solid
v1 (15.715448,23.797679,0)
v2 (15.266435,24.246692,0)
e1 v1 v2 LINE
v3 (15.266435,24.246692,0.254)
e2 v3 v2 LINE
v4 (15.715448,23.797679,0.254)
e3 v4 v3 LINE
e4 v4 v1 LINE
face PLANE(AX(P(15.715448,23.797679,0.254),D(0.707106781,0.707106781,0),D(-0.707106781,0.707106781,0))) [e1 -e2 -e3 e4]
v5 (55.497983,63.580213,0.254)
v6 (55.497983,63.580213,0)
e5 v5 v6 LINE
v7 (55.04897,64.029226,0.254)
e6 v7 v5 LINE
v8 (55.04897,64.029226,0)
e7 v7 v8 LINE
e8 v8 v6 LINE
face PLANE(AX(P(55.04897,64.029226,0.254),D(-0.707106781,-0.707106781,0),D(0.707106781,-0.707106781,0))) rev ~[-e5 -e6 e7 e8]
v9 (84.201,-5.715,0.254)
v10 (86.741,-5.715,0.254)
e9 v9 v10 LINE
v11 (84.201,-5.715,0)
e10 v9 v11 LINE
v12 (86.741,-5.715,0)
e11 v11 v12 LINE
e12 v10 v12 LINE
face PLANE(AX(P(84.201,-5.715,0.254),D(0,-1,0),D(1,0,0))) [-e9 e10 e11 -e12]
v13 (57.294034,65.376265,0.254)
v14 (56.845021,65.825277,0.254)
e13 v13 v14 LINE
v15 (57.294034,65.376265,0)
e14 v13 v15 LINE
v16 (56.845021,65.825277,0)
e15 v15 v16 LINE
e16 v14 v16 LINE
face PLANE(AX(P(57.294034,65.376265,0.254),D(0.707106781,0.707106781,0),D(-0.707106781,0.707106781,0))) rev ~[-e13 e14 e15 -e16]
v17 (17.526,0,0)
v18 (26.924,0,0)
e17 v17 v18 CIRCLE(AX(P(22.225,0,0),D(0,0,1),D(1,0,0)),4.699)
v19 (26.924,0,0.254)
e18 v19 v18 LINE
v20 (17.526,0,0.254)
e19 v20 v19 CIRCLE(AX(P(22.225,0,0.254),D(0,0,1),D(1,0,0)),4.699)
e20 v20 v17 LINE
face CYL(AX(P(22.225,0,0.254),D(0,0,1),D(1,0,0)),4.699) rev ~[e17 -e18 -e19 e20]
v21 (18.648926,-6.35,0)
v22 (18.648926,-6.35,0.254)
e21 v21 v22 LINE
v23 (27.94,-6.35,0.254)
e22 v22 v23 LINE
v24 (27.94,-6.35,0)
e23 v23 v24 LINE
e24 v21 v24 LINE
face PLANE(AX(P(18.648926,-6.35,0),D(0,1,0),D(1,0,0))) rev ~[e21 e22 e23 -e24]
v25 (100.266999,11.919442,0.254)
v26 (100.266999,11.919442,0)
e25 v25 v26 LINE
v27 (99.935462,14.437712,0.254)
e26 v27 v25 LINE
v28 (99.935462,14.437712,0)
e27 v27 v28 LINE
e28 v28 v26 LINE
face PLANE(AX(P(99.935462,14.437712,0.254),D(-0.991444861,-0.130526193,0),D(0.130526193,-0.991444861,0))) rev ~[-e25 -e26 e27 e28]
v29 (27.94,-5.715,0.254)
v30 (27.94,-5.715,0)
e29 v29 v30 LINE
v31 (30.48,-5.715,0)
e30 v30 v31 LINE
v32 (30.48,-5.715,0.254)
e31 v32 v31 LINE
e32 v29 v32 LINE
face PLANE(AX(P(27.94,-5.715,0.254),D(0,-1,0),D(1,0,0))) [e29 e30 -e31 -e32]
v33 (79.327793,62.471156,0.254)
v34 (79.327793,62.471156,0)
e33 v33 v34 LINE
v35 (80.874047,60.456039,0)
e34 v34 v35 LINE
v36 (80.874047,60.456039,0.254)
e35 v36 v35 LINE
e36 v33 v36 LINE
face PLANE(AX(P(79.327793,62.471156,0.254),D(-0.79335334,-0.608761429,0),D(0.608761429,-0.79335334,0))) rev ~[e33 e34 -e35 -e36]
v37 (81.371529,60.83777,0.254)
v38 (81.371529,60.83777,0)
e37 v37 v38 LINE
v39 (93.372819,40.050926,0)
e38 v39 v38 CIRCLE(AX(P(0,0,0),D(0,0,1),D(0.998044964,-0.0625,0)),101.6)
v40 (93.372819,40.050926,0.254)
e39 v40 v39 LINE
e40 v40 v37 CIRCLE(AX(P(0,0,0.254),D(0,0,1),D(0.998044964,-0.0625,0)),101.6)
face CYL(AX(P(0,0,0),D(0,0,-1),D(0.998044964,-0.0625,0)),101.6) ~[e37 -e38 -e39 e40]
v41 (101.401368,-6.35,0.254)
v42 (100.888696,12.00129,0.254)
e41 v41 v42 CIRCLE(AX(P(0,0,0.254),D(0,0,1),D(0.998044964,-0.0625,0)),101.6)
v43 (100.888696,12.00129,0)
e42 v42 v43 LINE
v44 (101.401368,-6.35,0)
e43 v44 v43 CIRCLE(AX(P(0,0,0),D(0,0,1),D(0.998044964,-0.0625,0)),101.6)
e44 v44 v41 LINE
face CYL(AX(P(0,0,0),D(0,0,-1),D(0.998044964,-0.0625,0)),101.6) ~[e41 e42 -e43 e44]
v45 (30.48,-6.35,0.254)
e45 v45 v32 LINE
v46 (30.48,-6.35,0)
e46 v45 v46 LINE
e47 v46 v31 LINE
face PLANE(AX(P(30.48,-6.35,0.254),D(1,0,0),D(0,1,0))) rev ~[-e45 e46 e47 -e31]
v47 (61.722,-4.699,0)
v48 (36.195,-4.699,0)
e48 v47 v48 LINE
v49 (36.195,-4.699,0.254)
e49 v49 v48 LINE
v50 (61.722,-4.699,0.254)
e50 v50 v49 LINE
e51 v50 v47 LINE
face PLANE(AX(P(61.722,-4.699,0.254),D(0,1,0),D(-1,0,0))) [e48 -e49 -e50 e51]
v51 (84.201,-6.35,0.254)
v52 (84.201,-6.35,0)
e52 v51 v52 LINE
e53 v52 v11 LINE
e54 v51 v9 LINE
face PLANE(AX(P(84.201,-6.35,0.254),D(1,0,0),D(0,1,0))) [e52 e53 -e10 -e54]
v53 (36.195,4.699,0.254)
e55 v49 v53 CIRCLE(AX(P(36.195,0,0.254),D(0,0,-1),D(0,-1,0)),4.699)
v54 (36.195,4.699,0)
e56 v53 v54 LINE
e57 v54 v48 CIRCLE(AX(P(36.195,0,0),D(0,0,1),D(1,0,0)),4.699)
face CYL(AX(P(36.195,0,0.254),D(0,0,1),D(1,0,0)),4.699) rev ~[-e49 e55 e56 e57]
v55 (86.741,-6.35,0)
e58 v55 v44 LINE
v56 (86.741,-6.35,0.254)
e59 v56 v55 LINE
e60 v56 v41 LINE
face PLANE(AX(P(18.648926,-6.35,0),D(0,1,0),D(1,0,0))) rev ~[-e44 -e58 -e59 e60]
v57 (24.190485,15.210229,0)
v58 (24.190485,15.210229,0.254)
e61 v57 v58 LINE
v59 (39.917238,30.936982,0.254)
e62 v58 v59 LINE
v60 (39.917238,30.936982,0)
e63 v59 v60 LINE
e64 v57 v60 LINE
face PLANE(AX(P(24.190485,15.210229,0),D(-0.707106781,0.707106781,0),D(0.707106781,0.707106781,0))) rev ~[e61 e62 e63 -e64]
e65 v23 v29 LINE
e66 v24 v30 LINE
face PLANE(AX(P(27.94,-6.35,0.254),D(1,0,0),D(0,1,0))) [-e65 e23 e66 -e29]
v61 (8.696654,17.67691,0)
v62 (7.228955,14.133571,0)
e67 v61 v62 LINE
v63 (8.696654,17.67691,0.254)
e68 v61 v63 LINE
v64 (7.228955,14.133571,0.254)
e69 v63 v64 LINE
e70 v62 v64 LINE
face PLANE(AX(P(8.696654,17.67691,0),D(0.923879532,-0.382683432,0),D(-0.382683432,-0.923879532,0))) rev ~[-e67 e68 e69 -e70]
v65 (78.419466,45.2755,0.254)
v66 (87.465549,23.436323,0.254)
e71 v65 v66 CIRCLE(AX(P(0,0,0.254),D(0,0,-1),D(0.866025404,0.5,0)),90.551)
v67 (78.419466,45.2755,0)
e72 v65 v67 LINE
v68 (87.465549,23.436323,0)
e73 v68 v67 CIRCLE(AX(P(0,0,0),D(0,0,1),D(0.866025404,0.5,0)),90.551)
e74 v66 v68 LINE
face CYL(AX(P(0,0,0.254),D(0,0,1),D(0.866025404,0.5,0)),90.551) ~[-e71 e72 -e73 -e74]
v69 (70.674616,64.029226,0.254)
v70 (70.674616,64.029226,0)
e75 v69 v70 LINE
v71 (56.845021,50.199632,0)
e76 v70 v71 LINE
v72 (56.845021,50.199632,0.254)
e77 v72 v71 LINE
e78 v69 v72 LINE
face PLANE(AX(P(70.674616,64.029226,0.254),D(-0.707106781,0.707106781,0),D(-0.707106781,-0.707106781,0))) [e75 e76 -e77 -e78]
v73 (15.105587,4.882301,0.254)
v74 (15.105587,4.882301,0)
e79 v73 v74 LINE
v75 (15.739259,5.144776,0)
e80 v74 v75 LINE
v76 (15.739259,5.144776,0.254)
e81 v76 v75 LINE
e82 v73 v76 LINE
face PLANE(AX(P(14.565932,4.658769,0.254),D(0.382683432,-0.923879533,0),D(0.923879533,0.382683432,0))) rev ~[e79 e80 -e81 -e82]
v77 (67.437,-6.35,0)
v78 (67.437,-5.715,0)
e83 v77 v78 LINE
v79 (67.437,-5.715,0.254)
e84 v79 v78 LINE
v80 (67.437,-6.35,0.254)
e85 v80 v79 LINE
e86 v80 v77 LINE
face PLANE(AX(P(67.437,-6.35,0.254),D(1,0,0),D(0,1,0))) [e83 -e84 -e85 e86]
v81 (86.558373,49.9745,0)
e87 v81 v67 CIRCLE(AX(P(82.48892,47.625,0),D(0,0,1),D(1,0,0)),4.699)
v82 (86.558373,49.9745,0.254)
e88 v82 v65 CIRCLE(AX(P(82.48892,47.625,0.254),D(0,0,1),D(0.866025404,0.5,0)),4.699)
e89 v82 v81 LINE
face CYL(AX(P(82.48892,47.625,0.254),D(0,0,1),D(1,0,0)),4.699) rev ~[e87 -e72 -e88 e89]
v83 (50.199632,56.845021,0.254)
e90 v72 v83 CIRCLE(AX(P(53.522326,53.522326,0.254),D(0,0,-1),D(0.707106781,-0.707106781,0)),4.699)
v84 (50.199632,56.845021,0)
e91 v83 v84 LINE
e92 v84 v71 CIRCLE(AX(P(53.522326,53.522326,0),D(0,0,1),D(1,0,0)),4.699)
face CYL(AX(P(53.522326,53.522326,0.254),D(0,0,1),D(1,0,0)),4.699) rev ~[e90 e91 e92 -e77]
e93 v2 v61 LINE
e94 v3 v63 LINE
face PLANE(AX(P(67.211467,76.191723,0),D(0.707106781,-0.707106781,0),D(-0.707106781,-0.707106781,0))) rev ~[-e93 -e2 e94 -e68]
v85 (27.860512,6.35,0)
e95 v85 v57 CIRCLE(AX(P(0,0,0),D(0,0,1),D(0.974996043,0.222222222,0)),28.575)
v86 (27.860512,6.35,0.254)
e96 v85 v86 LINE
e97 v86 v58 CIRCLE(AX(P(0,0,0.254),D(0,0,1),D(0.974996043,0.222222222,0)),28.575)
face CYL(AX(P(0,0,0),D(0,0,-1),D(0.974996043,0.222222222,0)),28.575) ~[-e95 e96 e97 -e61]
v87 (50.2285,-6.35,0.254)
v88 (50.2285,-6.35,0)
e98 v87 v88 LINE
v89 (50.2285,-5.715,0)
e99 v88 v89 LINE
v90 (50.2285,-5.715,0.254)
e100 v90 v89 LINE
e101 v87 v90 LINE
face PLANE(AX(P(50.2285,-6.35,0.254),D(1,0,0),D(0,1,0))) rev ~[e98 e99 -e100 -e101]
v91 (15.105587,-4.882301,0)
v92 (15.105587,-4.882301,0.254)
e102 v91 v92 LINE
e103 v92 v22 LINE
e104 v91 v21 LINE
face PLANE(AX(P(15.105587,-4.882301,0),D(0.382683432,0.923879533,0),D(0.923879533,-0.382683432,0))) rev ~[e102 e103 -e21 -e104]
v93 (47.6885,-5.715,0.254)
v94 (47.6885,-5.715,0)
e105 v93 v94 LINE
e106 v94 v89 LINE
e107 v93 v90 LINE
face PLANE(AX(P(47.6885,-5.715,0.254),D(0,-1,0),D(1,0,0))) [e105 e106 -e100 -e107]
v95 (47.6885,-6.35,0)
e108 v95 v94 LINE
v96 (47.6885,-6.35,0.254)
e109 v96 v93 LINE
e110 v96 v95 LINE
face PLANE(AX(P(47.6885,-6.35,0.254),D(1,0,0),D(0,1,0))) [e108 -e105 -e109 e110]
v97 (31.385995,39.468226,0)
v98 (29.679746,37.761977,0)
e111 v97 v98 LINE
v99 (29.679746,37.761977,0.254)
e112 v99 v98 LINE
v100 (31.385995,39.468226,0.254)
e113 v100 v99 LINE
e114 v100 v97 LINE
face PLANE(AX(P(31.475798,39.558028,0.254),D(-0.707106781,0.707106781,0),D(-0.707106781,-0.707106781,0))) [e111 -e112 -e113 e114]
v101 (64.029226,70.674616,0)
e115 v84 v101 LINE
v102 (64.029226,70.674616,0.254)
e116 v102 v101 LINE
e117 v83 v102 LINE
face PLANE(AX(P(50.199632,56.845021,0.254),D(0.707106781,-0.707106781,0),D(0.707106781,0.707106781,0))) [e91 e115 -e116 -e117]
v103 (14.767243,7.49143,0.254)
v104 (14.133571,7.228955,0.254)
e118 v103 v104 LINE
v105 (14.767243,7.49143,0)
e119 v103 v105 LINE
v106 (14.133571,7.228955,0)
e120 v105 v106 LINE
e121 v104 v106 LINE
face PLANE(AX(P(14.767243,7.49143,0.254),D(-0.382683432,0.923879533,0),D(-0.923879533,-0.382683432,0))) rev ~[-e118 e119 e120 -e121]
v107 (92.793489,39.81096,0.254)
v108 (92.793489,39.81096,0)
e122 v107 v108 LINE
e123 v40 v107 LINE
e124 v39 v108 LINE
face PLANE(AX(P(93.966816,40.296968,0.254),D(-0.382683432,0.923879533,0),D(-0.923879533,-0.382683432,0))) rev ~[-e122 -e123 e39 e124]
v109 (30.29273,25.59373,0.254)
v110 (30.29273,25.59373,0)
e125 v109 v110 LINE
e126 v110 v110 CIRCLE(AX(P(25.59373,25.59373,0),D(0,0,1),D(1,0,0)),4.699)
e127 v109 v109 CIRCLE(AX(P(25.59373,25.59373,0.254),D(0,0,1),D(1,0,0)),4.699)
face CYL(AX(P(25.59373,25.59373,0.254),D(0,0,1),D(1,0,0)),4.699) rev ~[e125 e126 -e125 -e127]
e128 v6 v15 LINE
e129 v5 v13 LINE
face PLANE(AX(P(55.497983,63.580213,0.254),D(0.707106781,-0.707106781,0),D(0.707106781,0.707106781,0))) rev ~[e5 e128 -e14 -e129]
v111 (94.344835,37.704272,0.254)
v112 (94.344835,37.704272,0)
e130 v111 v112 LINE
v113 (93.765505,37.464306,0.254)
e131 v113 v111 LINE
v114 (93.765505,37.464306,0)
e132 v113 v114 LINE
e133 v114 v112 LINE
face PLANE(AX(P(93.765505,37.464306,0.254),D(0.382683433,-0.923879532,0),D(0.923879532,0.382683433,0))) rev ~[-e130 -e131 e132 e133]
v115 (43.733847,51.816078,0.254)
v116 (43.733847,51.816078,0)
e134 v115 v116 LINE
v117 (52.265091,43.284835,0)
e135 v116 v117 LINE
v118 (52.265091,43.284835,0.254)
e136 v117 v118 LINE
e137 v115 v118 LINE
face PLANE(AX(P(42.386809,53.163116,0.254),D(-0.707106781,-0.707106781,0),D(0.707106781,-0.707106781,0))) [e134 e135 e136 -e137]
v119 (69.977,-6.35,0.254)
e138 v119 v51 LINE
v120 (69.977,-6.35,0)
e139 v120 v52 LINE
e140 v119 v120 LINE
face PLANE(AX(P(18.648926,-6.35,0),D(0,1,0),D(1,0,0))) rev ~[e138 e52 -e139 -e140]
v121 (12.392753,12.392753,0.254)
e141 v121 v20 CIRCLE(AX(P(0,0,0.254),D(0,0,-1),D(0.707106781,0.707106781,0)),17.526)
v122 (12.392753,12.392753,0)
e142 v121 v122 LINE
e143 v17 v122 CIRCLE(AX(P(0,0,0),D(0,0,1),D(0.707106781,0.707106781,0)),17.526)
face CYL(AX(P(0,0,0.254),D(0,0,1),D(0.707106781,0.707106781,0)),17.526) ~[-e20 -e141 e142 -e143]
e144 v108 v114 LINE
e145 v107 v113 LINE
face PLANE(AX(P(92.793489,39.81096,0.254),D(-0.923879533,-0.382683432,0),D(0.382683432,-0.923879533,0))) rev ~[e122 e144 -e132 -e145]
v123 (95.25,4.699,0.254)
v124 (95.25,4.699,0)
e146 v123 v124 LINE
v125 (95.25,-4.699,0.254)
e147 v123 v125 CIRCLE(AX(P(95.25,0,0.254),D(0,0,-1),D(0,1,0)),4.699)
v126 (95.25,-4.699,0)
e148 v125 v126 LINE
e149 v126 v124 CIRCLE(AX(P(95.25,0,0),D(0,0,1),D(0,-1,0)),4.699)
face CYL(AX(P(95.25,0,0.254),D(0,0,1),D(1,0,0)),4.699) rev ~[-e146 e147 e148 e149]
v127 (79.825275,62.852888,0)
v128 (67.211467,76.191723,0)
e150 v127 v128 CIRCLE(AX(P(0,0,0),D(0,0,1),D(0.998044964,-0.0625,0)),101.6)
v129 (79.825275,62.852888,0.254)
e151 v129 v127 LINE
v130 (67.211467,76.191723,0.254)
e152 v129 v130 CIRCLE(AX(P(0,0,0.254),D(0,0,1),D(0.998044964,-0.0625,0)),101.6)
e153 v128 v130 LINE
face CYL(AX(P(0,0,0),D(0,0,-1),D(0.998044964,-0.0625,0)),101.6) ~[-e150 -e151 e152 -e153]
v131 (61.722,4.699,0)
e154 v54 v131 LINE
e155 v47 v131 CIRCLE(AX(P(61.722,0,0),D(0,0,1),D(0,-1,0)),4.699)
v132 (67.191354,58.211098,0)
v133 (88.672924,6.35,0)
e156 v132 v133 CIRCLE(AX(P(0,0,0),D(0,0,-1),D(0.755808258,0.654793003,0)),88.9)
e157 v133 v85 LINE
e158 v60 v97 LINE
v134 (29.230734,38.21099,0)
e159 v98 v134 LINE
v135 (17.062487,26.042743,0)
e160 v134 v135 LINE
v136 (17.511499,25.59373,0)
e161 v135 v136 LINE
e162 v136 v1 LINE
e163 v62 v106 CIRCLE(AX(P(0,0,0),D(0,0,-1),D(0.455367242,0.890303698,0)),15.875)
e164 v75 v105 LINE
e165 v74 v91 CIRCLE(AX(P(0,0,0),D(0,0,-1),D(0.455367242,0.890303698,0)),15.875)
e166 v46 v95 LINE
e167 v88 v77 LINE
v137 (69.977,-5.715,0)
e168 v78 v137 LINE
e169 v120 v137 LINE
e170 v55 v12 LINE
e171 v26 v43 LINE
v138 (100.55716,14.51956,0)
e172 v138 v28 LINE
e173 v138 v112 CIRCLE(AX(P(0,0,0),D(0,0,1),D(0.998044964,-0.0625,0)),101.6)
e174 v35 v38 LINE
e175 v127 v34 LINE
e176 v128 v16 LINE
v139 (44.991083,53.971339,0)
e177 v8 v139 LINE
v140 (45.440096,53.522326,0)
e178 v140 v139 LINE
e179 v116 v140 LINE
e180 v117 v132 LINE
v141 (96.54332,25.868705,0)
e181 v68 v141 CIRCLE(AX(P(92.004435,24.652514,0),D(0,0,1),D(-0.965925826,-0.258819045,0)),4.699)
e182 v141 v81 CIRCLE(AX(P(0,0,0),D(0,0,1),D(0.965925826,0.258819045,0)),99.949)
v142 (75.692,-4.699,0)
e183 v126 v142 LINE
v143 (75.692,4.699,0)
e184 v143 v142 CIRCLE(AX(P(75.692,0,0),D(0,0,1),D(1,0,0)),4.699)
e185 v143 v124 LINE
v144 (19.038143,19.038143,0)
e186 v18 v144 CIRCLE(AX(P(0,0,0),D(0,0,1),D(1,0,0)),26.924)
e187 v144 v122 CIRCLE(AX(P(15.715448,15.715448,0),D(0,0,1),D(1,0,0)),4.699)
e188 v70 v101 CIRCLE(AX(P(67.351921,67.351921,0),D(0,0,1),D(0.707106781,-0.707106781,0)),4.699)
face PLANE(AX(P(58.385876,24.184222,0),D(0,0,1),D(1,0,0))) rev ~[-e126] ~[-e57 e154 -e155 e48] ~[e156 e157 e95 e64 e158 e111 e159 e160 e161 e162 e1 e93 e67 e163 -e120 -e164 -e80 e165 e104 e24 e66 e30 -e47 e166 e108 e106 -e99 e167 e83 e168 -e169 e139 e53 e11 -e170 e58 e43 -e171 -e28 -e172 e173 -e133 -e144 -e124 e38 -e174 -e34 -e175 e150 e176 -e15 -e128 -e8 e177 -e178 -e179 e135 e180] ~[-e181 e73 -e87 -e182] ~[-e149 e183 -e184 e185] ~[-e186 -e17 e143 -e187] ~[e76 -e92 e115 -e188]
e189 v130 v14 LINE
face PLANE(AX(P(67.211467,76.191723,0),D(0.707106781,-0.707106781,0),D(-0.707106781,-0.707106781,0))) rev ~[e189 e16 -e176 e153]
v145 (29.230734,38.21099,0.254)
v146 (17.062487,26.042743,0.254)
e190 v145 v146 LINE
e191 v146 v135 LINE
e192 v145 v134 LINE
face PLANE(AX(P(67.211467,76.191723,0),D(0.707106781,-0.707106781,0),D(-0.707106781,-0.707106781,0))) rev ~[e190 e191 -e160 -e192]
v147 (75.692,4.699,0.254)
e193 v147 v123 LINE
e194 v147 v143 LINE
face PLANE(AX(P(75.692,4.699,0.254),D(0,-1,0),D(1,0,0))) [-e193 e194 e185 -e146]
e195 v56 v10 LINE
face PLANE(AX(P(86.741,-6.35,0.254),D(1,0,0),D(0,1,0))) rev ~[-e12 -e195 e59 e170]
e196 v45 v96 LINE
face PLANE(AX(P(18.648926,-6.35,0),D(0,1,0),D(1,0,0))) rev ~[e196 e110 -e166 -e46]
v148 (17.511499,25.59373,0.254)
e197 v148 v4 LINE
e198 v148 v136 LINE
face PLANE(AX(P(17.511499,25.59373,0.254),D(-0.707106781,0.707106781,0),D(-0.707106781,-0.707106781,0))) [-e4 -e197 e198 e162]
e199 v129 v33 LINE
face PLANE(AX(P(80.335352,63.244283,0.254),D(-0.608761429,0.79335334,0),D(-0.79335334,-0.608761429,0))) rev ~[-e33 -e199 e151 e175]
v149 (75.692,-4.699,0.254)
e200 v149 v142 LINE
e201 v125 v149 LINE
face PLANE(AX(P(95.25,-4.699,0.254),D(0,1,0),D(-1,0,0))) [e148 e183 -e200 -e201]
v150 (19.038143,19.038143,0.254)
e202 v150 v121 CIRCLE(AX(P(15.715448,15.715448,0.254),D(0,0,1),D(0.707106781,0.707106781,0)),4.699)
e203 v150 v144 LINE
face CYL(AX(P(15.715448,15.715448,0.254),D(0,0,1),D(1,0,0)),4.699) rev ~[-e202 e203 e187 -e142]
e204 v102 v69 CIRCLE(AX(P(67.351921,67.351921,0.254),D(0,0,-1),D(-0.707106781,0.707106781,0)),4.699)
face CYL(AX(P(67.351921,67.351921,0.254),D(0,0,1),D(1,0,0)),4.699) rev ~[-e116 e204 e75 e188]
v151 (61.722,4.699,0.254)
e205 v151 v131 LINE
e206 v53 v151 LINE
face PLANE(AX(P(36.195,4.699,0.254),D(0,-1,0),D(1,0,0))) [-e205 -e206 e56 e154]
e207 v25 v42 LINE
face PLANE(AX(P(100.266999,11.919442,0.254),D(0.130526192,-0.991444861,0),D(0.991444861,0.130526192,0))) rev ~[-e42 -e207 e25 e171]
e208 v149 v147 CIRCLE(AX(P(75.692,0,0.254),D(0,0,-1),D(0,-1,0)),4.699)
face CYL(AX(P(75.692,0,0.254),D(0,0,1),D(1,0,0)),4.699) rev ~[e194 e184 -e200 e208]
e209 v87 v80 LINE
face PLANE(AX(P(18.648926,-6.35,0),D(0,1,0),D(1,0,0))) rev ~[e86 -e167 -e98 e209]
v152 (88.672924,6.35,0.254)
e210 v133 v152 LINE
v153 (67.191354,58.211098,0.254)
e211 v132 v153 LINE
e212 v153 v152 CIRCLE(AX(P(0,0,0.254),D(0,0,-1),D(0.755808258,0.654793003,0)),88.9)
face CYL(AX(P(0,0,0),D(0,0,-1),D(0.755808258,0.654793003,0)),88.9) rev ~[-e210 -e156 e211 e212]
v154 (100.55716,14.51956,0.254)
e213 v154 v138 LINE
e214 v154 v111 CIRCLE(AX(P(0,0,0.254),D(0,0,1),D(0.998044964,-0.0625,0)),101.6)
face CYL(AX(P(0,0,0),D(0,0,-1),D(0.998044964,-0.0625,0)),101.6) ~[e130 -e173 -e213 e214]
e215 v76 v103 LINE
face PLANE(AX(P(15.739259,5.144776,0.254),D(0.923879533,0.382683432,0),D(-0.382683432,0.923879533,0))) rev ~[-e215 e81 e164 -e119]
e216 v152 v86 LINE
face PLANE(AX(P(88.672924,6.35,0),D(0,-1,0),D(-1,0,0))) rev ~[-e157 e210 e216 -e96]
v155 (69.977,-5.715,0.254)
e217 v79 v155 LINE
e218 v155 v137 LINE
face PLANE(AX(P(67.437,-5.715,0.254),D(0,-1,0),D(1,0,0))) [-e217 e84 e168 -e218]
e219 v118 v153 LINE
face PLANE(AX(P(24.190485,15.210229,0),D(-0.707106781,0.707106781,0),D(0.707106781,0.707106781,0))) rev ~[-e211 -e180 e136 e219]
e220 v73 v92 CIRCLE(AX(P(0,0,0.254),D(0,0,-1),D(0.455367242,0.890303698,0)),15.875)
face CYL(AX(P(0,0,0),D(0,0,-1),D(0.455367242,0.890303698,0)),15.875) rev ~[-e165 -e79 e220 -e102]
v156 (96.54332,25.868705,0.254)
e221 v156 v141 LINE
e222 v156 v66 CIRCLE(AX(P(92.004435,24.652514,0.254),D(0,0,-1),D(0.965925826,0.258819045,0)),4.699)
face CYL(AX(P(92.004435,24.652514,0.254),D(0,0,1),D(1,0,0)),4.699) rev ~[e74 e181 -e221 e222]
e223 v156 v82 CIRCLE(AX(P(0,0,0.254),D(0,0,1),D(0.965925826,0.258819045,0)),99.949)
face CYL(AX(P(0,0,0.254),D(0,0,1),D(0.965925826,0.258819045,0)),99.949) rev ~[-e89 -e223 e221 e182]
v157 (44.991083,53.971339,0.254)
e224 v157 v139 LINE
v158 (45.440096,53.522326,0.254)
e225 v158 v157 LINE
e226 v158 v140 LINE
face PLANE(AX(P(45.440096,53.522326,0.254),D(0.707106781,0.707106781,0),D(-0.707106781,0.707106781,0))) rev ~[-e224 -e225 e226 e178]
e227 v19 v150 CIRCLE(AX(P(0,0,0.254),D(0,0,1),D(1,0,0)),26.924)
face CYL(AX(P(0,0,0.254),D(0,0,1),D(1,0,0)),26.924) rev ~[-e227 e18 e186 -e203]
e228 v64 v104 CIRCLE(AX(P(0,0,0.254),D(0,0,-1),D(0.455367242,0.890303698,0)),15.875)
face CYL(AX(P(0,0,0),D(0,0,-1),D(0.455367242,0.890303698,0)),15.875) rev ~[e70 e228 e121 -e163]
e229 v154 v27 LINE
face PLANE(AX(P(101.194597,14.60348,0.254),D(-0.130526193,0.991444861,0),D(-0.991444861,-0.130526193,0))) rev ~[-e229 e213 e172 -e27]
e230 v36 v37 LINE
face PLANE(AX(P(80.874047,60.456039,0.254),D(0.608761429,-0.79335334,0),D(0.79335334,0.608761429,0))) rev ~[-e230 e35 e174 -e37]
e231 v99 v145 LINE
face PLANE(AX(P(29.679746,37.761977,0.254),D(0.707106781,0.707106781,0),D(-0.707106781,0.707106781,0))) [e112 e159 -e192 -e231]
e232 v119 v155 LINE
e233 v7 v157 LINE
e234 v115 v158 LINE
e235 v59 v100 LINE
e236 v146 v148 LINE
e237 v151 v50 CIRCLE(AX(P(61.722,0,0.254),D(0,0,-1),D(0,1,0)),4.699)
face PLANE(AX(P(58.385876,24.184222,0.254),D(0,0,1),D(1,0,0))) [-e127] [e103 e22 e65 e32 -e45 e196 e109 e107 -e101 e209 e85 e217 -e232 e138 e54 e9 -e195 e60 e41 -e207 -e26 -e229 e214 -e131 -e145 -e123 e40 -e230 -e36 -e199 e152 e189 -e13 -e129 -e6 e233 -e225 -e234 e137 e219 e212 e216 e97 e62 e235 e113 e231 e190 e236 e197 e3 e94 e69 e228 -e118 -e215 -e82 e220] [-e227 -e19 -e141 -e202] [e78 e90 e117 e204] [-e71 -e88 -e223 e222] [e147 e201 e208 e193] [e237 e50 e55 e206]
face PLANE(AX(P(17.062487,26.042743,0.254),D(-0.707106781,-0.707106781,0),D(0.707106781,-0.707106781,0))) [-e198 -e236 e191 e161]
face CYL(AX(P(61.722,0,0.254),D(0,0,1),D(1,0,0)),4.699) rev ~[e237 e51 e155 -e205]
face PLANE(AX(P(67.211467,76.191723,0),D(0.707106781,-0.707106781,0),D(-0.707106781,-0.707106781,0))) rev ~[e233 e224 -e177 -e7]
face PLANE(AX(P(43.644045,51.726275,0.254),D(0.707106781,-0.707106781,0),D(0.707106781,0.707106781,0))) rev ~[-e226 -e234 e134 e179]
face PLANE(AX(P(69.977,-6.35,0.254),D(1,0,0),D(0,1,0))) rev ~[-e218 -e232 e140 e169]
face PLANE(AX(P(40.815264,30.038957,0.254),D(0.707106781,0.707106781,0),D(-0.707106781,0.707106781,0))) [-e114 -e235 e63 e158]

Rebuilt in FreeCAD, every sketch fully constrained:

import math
import FreeCAD as App
import Part
import Sketcher

V = App.Vector
Q = App.Units.Quantity

doc = App.newDocument("Part")
params = doc.addObject("Spreadsheet::Sheet", "Params")
for row, (alias, value) in enumerate([
    ("sketch1_radius", "4 in"),
    ("sketch1_radius2", "3.5 in"),
    ("sketch1_radius3", "0.625 in"),
    ("sketch1_radius4", "1.125 in"),
    ("pad1_length", "0.01 in"),
    ("sketch2_diameter", "0.37 in"),
    ("sketch3_width", "0.1 in"),
    ("sketch3_length", "0.1 in"),
    ("sketch3_length2", "0.05 in"),
    ("sketch3_height", "0.025 in"),
    ("sketch3_length3", "0.025 in"),
    ("sketch4_radius", "1.06 in"),
    ("sketch4_radius2", "0.69 in"),
    ("sketch4_radius3", "3.935 in"),
    ("sketch4_width", "0.77 in"),
    ("sketch4_length", "0.77 in"),
    ("sketch5_length", "0.6 in"),
    ("sketch5_length2", "0.6875 in"),
], start=1):
    params.set(f"A{row}", alias)
    params.set(f"B{row}", "=" + value)
    params.setAlias(f"B{row}", alias)

body = doc.addObject("PartDesign::Body", "Body")

# Sketch on XY plane
sketch1 = body.newObject("Sketcher::SketchObject", "Sketch")
sketch1.AttachmentSupport = (doc.getObject("XY_Plane"), [""])
sketch1.MapMode = "FlatFace"
sketch1.addGeometry([
    Part.LineSegment(V(67.211467, 76.191723, 0), V(8.696654, 17.67691, 0)),  # 0
    Part.LineSegment(V(8.696654, 17.67691, 0), V(7.228955, 14.133571, 0)),  # 1
    Part.ArcOfCircle(Part.Circle(V(0, 0, 0), V(0, 0, 1), 15.875), math.radians(-17.911434), math.radians(62.911434)),  # 2
    Part.LineSegment(V(15.105587, -4.882301, 0), V(18.648926, -6.35, 0)),  # 3
    Part.LineSegment(V(18.648926, -6.35, 0), V(101.401368, -6.35, 0)),  # 4
    Part.ArcOfCircle(Part.Circle(V(0, 0, 0), V(0, 0, 1), 101.6), math.radians(-3.583322), math.radians(48.583322)),  # 5
    Part.ArcOfCircle(Part.Circle(V(0, 0, 0), V(0, 0, 1), 88.9), math.radians(4.096044), math.radians(40.903956)),  # 6
    Part.LineSegment(V(88.672924, 6.35, 0), V(27.860512, 6.35, 0)),  # 7
    Part.ArcOfCircle(Part.Circle(V(0, 0, 0), V(0, 0, 1), 28.575), math.radians(12.839588), math.radians(32.160412)),  # 8
    Part.LineSegment(V(24.190485, 15.210229, 0), V(67.191354, 58.211098, 0)),  # 9
], False)
sketch1.addConstraint([
    Sketcher.Constraint("Coincident", 0, 2, 1, 1),
    Sketcher.Constraint("Coincident", 1, 2, 2, 2),
    Sketcher.Constraint("Coincident", 2, 1, 3, 1),
    Sketcher.Constraint("Coincident", 3, 2, 4, 1),
    Sketcher.Constraint("Coincident", 4, 2, 5, 1),
    Sketcher.Constraint("Coincident", 5, 2, 0, 1),
    Sketcher.Constraint("Coincident", 6, 1, 7, 1),
    Sketcher.Constraint("Coincident", 7, 2, 8, 1),
    Sketcher.Constraint("Coincident", 8, 2, 9, 1),
    Sketcher.Constraint("Coincident", 9, 2, 6, 2),
    Sketcher.Constraint("Horizontal", 4),
    Sketcher.Constraint("Horizontal", 7),
    Sketcher.Constraint("Coincident", 2, 3, -1, 1),
    Sketcher.Constraint("Coincident", 5, 3, -1, 1),
    Sketcher.Constraint("Coincident", 6, 3, -1, 1),
    Sketcher.Constraint("Coincident", 8, 3, -1, 1),
    Sketcher.Constraint("Perpendicular", 1, 3),
    Sketcher.Constraint("Parallel", 0, 9),
    Sketcher.Constraint("Equal", 1, 3),
    Sketcher.Constraint("Radius", 5, Q("4 in")),
    Sketcher.Constraint("Radius", 6, Q("3.5 in")),
    Sketcher.Constraint("Angle", 0, Q("-135 deg")),
    Sketcher.Constraint("Radius", 2, Q("0.625 in")),
    Sketcher.Constraint("Radius", 8, Q("1.125 in")),
    Sketcher.Constraint("Angle", 1, Q("-112.5 deg")),
    Sketcher.Constraint("DistanceY", 4, 2, 6, 1, Q("0.5 in")),
    Sketcher.Constraint("DistanceY", 3, 2, -1, 1, Q("0.25 in")),
    Sketcher.Constraint("DistanceY", 2, 1, -1, 1, Q("4.882301 mm")),
    Sketcher.Constraint("DistanceY", -1, 1, 9, 2, Q("58.211098 mm")),
    Sketcher.Constraint("DistanceX", 5, 2, 4, 2, Q("34.189901 mm")),
])
sketch1.setExpression("Constraints[19]", "Params.sketch1_radius")
sketch1.setExpression("Constraints[20]", "Params.sketch1_radius2")
sketch1.setExpression("Constraints[22]", "Params.sketch1_radius3")
sketch1.setExpression("Constraints[23]", "Params.sketch1_radius4")
pad1 = body.newObject("PartDesign::Pad", "Pad")
pad1.Profile = sketch1
pad1.setExpression("Length", "Params.pad1_length")

# Sketch on XY plane
sketch2 = body.newObject("Sketcher::SketchObject", "Sketch001")
sketch2.AttachmentSupport = (doc.getObject("XY_Plane"), [""])
sketch2.MapMode = "FlatFace"
sketch2.AttachmentOffset = App.Placement(V(0, 0, 0.01 * 25.4), App.Rotation())
sketch2.addGeometry([
    Part.Circle(V(22.225, 0, 0), V(0, 0, 1), 4.699),  # 0
    Part.Circle(V(36.195, 0, 0), V(0, 0, 1), 4.699),  # 1
    Part.Circle(V(61.722, 0, 0), V(0, 0, 1), 4.699),  # 2
    Part.Circle(V(75.692, 0, 0), V(0, 0, 1), 4.699),  # 3
    Part.Circle(V(95.25, 0, 0), V(0, 0, 1), 4.699),  # 4
    Part.Circle(V(15.715448, 15.715448, 0), V(0, 0, 1), 4.699),  # 5
    Part.Circle(V(25.59373, 25.59373, 0), V(0, 0, 1), 4.699),  # 6
    Part.Circle(V(43.644045, 43.644045, 0), V(0, 0, 1), 4.699),  # 7
    Part.Circle(V(53.522326, 53.522326, 0), V(0, 0, 1), 4.699),  # 8
    Part.Circle(V(92.004435, 24.652514, 0), V(0, 0, 1), 4.699),  # 9
    Part.Circle(V(82.48892, 47.625, 0), V(0, 0, 1), 4.699),  # 10
    Part.Circle(V(67.351921, 67.351921, 0), V(0, 0, 1), 4.699),  # 11
], False)
sketch2.addConstraint([
    Sketcher.Constraint("Equal", 0, 1),
    Sketcher.Constraint("Equal", 1, 2),
    Sketcher.Constraint("Equal", 2, 3),
    Sketcher.Constraint("Equal", 3, 4),
    Sketcher.Constraint("Equal", 4, 5),
    Sketcher.Constraint("Equal", 5, 6),
    Sketcher.Constraint("Equal", 6, 7),
    Sketcher.Constraint("Equal", 7, 8),
    Sketcher.Constraint("Equal", 8, 9),
    Sketcher.Constraint("Equal", 9, 10),
    Sketcher.Constraint("Equal", 10, 11),
    Sketcher.Constraint("PointOnObject", 0, 3, -1),
    Sketcher.Constraint("PointOnObject", 1, 3, -1),
    Sketcher.Constraint("PointOnObject", 2, 3, -1),
    Sketcher.Constraint("PointOnObject", 3, 3, -1),
    Sketcher.Constraint("PointOnObject", 4, 3, -1),
    Sketcher.Constraint("Diameter", 0, Q("0.37 in")),
    Sketcher.Constraint("DistanceX", -1, 1, 2, 3, Q("2.43 in")),
    Sketcher.Constraint("DistanceX", -1, 1, 3, 3, Q("2.98 in")),
    Sketcher.Constraint("DistanceX", -1, 1, 4, 3, Q("3.75 in")),
    Sketcher.Constraint("DistanceX", 0, 3, 1, 3, Q("0.55 in")),
    Sketcher.Constraint("DistanceX", -1, 1, 0, 3, Q("0.875 in")),
    Sketcher.Constraint("DistanceY", -1, 1, 10, 3, Q("1.875 in")),
    Sketcher.Constraint("DistanceX", 11, 3, 10, 3, Q("15.136999 mm")),
    Sketcher.Constraint("DistanceX", -1, 1, 5, 3, Q("15.715448 mm")),
    Sketcher.Constraint("DistanceY", -1, 1, 5, 3, Q("15.715448 mm")),
    Sketcher.Constraint("DistanceX", -1, 1, 6, 3, Q("25.59373 mm")),
    Sketcher.Constraint("DistanceY", -1, 1, 6, 3, Q("25.59373 mm")),
    Sketcher.Constraint("DistanceX", -1, 1, 10, 3, Q("82.48892 mm")),
    Sketcher.Constraint("DistanceY", -1, 1, 11, 3, Q("67.351921 mm")),
    Sketcher.Constraint("DistanceX", 7, 3, 8, 3, Q("9.878282 mm")),
    Sketcher.Constraint("DistanceY", 7, 3, 8, 3, Q("9.878282 mm")),
    Sketcher.Constraint("DistanceX", 5, 3, 8, 3, Q("37.806878 mm")),
    Sketcher.Constraint("DistanceY", 5, 3, 8, 3, Q("37.806878 mm")),
    Sketcher.Constraint("DistanceX", 8, 3, 9, 3, Q("38.482108 mm")),
    Sketcher.Constraint("DistanceY", 9, 3, 7, 3, Q("18.991531 mm")),
])
sketch2.setExpression("Constraints[16]", "Params.sketch2_diameter")
pocket1 = body.newObject("PartDesign::Pocket", "Pocket")
pocket1.Profile = sketch2
pocket1.Type = "ThroughAll"

# Sketch on XY plane
sketch3 = body.newObject("Sketcher::SketchObject", "Sketch002")
sketch3.AttachmentSupport = (doc.getObject("XY_Plane"), [""])
sketch3.MapMode = "FlatFace"
sketch3.AttachmentOffset = App.Placement(V(0, 0, 0.01 * 25.4), App.Rotation())
sketch3.addGeometry([
    Part.LineSegment(V(17.062487, 26.042743, 0), V(15.266435, 24.246692, 0)),  # 0
    Part.LineSegment(V(15.266435, 24.246692, 0), V(15.715448, 23.797679, 0)),  # 1
    Part.LineSegment(V(15.715448, 23.797679, 0), V(17.511499, 25.59373, 0)),  # 2
    Part.LineSegment(V(17.511499, 25.59373, 0), V(17.062487, 26.042743, 0)),  # 3
    Part.LineSegment(V(44.991083, 53.971339, 0), V(43.195032, 52.175288, 0)),  # 4
    Part.LineSegment(V(43.195032, 52.175288, 0), V(43.644045, 51.726275, 0)),  # 5
    Part.LineSegment(V(43.644045, 51.726275, 0), V(45.440096, 53.522326, 0)),  # 6
    Part.LineSegment(V(45.440096, 53.522326, 0), V(44.991083, 53.971339, 0)),  # 7
    Part.LineSegment(V(27.94, -5.715, 0), V(27.94, -6.35, 0)),  # 8
    Part.LineSegment(V(27.94, -6.35, 0), V(30.48, -6.35, 0)),  # 9
    Part.LineSegment(V(30.48, -6.35, 0), V(30.48, -5.715, 0)),  # 10
    Part.LineSegment(V(30.48, -5.715, 0), V(27.94, -5.715, 0)),  # 11
    Part.LineSegment(V(67.437, -5.715, 0), V(67.437, -6.35, 0)),  # 12
    Part.LineSegment(V(67.437, -6.35, 0), V(69.977, -6.35, 0)),  # 13
    Part.LineSegment(V(69.977, -6.35, 0), V(69.977, -5.715, 0)),  # 14
    Part.LineSegment(V(69.977, -5.715, 0), V(67.437, -5.715, 0)),  # 15
    Part.LineSegment(V(31.026785, 40.007041, 0), V(29.230734, 38.21099, 0)),  # 16
    Part.LineSegment(V(29.230734, 38.21099, 0), V(29.679746, 37.761977, 0)),  # 17
    Part.LineSegment(V(29.679746, 37.761977, 0), V(31.475798, 39.558028, 0)),  # 18
    Part.LineSegment(V(31.475798, 39.558028, 0), V(31.026785, 40.007041, 0)),  # 19
    Part.LineSegment(V(56.845021, 65.825277, 0), V(55.04897, 64.029226, 0)),  # 20
    Part.LineSegment(V(55.04897, 64.029226, 0), V(55.497983, 63.580213, 0)),  # 21
    Part.LineSegment(V(55.497983, 63.580213, 0), V(57.294034, 65.376265, 0)),  # 22
    Part.LineSegment(V(57.294034, 65.376265, 0), V(56.845021, 65.825277, 0)),  # 23
    Part.LineSegment(V(47.6885, -5.715, 0), V(47.6885, -6.35, 0)),  # 24
    Part.LineSegment(V(47.6885, -6.35, 0), V(50.2285, -6.35, 0)),  # 25
    Part.LineSegment(V(50.2285, -6.35, 0), V(50.2285, -5.715, 0)),  # 26
    Part.LineSegment(V(50.2285, -5.715, 0), V(47.6885, -5.715, 0)),  # 27
    Part.LineSegment(V(84.201, -5.715, 0), V(84.201, -6.35, 0)),  # 28
    Part.LineSegment(V(84.201, -6.35, 0), V(86.741, -6.35, 0)),  # 29
    Part.LineSegment(V(86.741, -6.35, 0), V(86.741, -5.715, 0)),  # 30
    Part.LineSegment(V(86.741, -5.715, 0), V(84.201, -5.715, 0)),  # 31
    Part.LineSegment(V(99.935462, 14.437712, 0), V(100.266999, 11.919442, 0)),  # 32
    Part.LineSegment(V(100.266999, 11.919442, 0), V(101.526134, 12.08521, 0)),  # 33
    Part.LineSegment(V(101.526134, 12.08521, 0), V(101.194597, 14.60348, 0)),  # 34
    Part.LineSegment(V(101.194597, 14.60348, 0), V(99.935462, 14.437712, 0)),  # 35
    Part.LineSegment(V(93.765505, 37.464306, 0), V(94.938832, 37.950314, 0)),  # 36
    Part.LineSegment(V(94.938832, 37.950314, 0), V(93.966816, 40.296968, 0)),  # 37
    Part.LineSegment(V(93.966816, 40.296968, 0), V(92.793489, 39.81096, 0)),  # 38
    Part.LineSegment(V(92.793489, 39.81096, 0), V(93.765505, 37.464306, 0)),  # 39
    Part.LineSegment(V(79.327793, 62.471156, 0), V(80.874047, 60.456039, 0)),  # 40
    Part.LineSegment(V(80.874047, 60.456039, 0), V(81.881606, 61.229166, 0)),  # 41
    Part.LineSegment(V(81.881606, 61.229166, 0), V(80.335352, 63.244283, 0)),  # 42
    Part.LineSegment(V(80.335352, 63.244283, 0), V(79.327793, 62.471156, 0)),  # 43
    Part.LineSegment(V(13.593916, 7.005423, 0), V(14.565932, 4.658769, 0)),  # 44
    Part.LineSegment(V(14.565932, 4.658769, 0), V(15.739259, 5.144776, 0)),  # 45
    Part.LineSegment(V(15.739259, 5.144776, 0), V(14.767243, 7.49143, 0)),  # 46
    Part.LineSegment(V(14.767243, 7.49143, 0), V(13.593916, 7.005423, 0)),  # 47
], False)
sketch3.addConstraint([
    Sketcher.Constraint("Coincident", 0, 2, 1, 1),
    Sketcher.Constraint("Coincident", 1, 2, 2, 1),
    Sketcher.Constraint("Coincident", 2, 2, 3, 1),
    Sketcher.Constraint("Coincident", 3, 2, 0, 1),
    Sketcher.Constraint("Coincident", 4, 2, 5, 1),
    Sketcher.Constraint("Coincident", 5, 2, 6, 1),
    Sketcher.Constraint("Coincident", 6, 2, 7, 1),
    Sketcher.Constraint("Coincident", 7, 2, 4, 1),
    Sketcher.Constraint("Coincident", 8, 2, 9, 1),
    Sketcher.Constraint("Coincident", 9, 2, 10, 1),
    Sketcher.Constraint("Coincident", 10, 2, 11, 1),
    Sketcher.Constraint("Coincident", 11, 2, 8, 1),
    Sketcher.Constraint("Coincident", 12, 2, 13, 1),
    Sketcher.Constraint("Coincident", 13, 2, 14, 1),
    Sketcher.Constraint("Coincident", 14, 2, 15, 1),
    Sketcher.Constraint("Coincident", 15, 2, 12, 1),
    Sketcher.Constraint("Coincident", 16, 2, 17, 1),
    Sketcher.Constraint("Coincident", 17, 2, 18, 1),
    Sketcher.Constraint("Coincident", 18, 2, 19, 1),
    Sketcher.Constraint("Coincident", 19, 2, 16, 1),
    Sketcher.Constraint("Coincident", 20, 2, 21, 1),
    Sketcher.Constraint("Coincident", 21, 2, 22, 1),
    Sketcher.Constraint("Coincident", 22, 2, 23, 1),
    Sketcher.Constraint("Coincident", 23, 2, 20, 1),
    Sketcher.Constraint("Coincident", 24, 2, 25, 1),
    Sketcher.Constraint("Coincident", 25, 2, 26, 1),
    Sketcher.Constraint("Coincident", 26, 2, 27, 1),
    Sketcher.Constraint("Coincident", 27, 2, 24, 1),
    Sketcher.Constraint("Coincident", 28, 2, 29, 1),
    Sketcher.Constraint("Coincident", 29, 2, 30, 1),
    Sketcher.Constraint("Coincident", 30, 2, 31, 1),
    Sketcher.Constraint("Coincident", 31, 2, 28, 1),
    Sketcher.Constraint("Coincident", 32, 2, 33, 1),
    Sketcher.Constraint("Coincident", 33, 2, 34, 1),
    Sketcher.Constraint("Coincident", 34, 2, 35, 1),
    Sketcher.Constraint("Coincident", 35, 2, 32, 1),
    Sketcher.Constraint("Coincident", 36, 2, 37, 1),
    Sketcher.Constraint("Coincident", 37, 2, 38, 1),
    Sketcher.Constraint("Coincident", 38, 2, 39, 1),
    Sketcher.Constraint("Coincident", 39, 2, 36, 1),
    Sketcher.Constraint("Coincident", 40, 2, 41, 1),
    Sketcher.Constraint("Coincident", 41, 2, 42, 1),
    Sketcher.Constraint("Coincident", 42, 2, 43, 1),
    Sketcher.Constraint("Coincident", 43, 2, 40, 1),
    Sketcher.Constraint("Coincident", 44, 2, 45, 1),
    Sketcher.Constraint("Coincident", 45, 2, 46, 1),
    Sketcher.Constraint("Coincident", 46, 2, 47, 1),
    Sketcher.Constraint("Coincident", 47, 2, 44, 1),
    Sketcher.Constraint("Vertical", 8),
    Sketcher.Constraint("Horizontal", 9),
    Sketcher.Constraint("Vertical", 10),
    Sketcher.Constraint("Horizontal", 11),
    Sketcher.Constraint("Vertical", 12),
    Sketcher.Constraint("Horizontal", 13),
    Sketcher.Constraint("Vertical", 14),
    Sketcher.Constraint("Horizontal", 15),
    Sketcher.Constraint("Vertical", 24),
    Sketcher.Constraint("Horizontal", 25),
    Sketcher.Constraint("Vertical", 26),
    Sketcher.Constraint("Horizontal", 27),
    Sketcher.Constraint("Vertical", 28),
    Sketcher.Constraint("Horizontal", 29),
    Sketcher.Constraint("Vertical", 30),
    Sketcher.Constraint("Horizontal", 31),
    Sketcher.Constraint("Perpendicular", 0, 1),
    Sketcher.Constraint("Perpendicular", 1, 2),
    Sketcher.Constraint("Perpendicular", 2, 3),
    Sketcher.Constraint("Perpendicular", 3, 4),
    Sketcher.Constraint("Perpendicular", 4, 5),
    Sketcher.Constraint("Perpendicular", 5, 6),
    Sketcher.Constraint("Perpendicular", 6, 7),
    Sketcher.Constraint("Perpendicular", 7, 16),
    Sketcher.Constraint("Perpendicular", 16, 17),
    Sketcher.Constraint("Perpendicular", 17, 18),
    Sketcher.Constraint("Perpendicular", 18, 19),
    Sketcher.Constraint("Perpendicular", 19, 20),
    Sketcher.Constraint("Perpendicular", 20, 21),
    Sketcher.Constraint("Perpendicular", 21, 22),
    Sketcher.Constraint("Perpendicular", 22, 23),
    Sketcher.Constraint("Perpendicular", 32, 33),
    Sketcher.Constraint("Perpendicular", 33, 34),
    Sketcher.Constraint("Perpendicular", 34, 35),
    Sketcher.Constraint("Perpendicular", 36, 37),
    Sketcher.Constraint("Perpendicular", 37, 38),
    Sketcher.Constraint("Perpendicular", 38, 39),
    Sketcher.Constraint("Perpendicular", 40, 41),
    Sketcher.Constraint("Perpendicular", 41, 42),
    Sketcher.Constraint("Perpendicular", 42, 43),
    Sketcher.Constraint("Parallel", 39, 44),
    Sketcher.Constraint("Perpendicular", 44, 45),
    Sketcher.Constraint("Perpendicular", 45, 46),
    Sketcher.Constraint("Perpendicular", 46, 47),
    Sketcher.Constraint("Horizontal", 9, 2, 12, 2),
    Sketcher.Constraint("Horizontal", 11, 2, 14, 2),
    Sketcher.Constraint("Horizontal", 13, 2, 24, 2),
    Sketcher.Constraint("Horizontal", 15, 2, 26, 2),
    Sketcher.Constraint("Horizontal", 25, 2, 28, 2),
    Sketcher.Constraint("Horizontal", 27, 2, 30, 2),
    Sketcher.Constraint("Equal", 11, 13),
    Sketcher.Constraint("Equal", 15, 25),
    Sketcher.Constraint("Equal", 27, 29),
    Sketcher.Constraint("Equal", 2, 4),
    Sketcher.Constraint("Equal", 3, 5),
    Sketcher.Constraint("Equal", 6, 16),
    Sketcher.Constraint("Equal", 7, 17),
    Sketcher.Constraint("Equal", 18, 20),
    Sketcher.Constraint("Equal", 19, 21),
    Sketcher.Constraint("Equal", 22, 32),
    Sketcher.Constraint("Equal", 35, 36),
    Sketcher.Constraint("Equal", 34, 37),
    Sketcher.Constraint("Equal", 39, 40),
    Sketcher.Constraint("Equal", 38, 41),
    Sketcher.Constraint("Equal", 42, 44),
    Sketcher.Constraint("Equal", 43, 45),
    Sketcher.Constraint("DistanceX", 9, 1, 9, 2, Q("0.1 in")),
    Sketcher.Constraint("Angle", 0, Q("-135 deg")),
    Sketcher.Constraint("Distance", 0, Q("0.1 in")),
    Sketcher.Constraint("DistanceX", -1, 1, 8, 2, Q("1.1 in")),
    Sketcher.Constraint("Angle", 32, Q("-82.5 deg")),
    Sketcher.Constraint("Angle", 36, Q("22.5 deg")),
    Sketcher.Constraint("Angle", 40, Q("-52.5 deg")),
    Sketcher.Constraint("Distance", 33, Q("0.05 in")),
    Sketcher.Constraint("DistanceY", 8, 2, 8, 1, Q("0.025 in")),
    Sketcher.Constraint("DistanceY", 8, 2, -1, 1, Q("0.25 in")),
    Sketcher.Constraint("DistanceX", 13, 2, 28, 2, Q("0.56 in")),
    Sketcher.Constraint("Distance", 1, Q("0.025 in")),
    Sketcher.Constraint("DistanceX", -1, 1, 12, 2, Q("2.655 in")),
    Sketcher.Constraint("DistanceX", -1, 1, 24, 2, Q("1.8775 in")),
    Sketcher.Constraint("DistanceX", -1, 1, 2, 2, Q("17.511499 mm")),
    Sketcher.Constraint("DistanceX", -1, 1, 32, 2, Q("100.266999 mm")),
    Sketcher.Constraint("DistanceX", 16, 2, 4, 2, Q("13.964298 mm")),
    Sketcher.Constraint("DistanceY", 16, 2, 4, 2, Q("13.964298 mm")),
    Sketcher.Constraint("DistanceX", 0, 2, 16, 2, Q("13.964298 mm")),
    Sketcher.Constraint("DistanceY", 0, 2, 16, 2, Q("13.964298 mm")),
    Sketcher.Constraint("DistanceY", 6, 2, 20, 2, Q("10.5069 mm")),
    Sketcher.Constraint("DistanceX", 7, 2, 21, 2, Q("10.5069 mm")),
    Sketcher.Constraint("DistanceY", 35, 2, 36, 2, Q("23.512602 mm")),
    Sketcher.Constraint("DistanceX", 36, 2, 33, 2, Q("6.587302 mm")),
    Sketcher.Constraint("DistanceY", 37, 2, 41, 2, Q("20.932198 mm")),
    Sketcher.Constraint("DistanceY", 41, 2, 22, 2, Q("4.147099 mm")),
    Sketcher.Constraint("DistanceY", 46, 2, 2, 2, Q("18.102299 mm")),
    Sketcher.Constraint("DistanceY", -1, 1, 0, 2, Q("24.246692 mm")),
    Sketcher.Constraint("DistanceX", -1, 1, 42, 2, Q("80.335352 mm")),
    Sketcher.Constraint("DistanceX", -1, 1, 45, 2, Q("15.739259 mm")),
])
sketch3.setExpression("Constraints[114]", "Params.sketch3_width")
sketch3.setExpression("Constraints[116]", "Params.sketch3_length")
sketch3.setExpression("Constraints[121]", "Params.sketch3_length2")
sketch3.setExpression("Constraints[122]", "Params.sketch3_height")
sketch3.setExpression("Constraints[125]", "Params.sketch3_length3")
pocket2 = body.newObject("PartDesign::Pocket", "Pocket001")
pocket2.Profile = sketch3
pocket2.Type = "ThroughAll"

# Sketch on XY plane
sketch4 = body.newObject("Sketcher::SketchObject", "Sketch003")
sketch4.AttachmentSupport = (doc.getObject("XY_Plane"), [""])
sketch4.MapMode = "FlatFace"
sketch4.AttachmentOffset = App.Placement(V(0, 0, 0.01 * 25.4), App.Rotation())
sketch4.addGeometry([
    Part.LineSegment(V(64.029226, 70.674616, 0), V(50.199632, 56.845021, 0)),  # 0
    Part.ArcOfCircle(Part.Circle(V(53.522326, 53.522326, 0), V(0, 0, 1), 4.699), math.radians(135), math.radians(315)),  # 1
    Part.LineSegment(V(56.845021, 50.199632, 0), V(70.674616, 64.029226, 0)),  # 2
    Part.ArcOfCircle(Part.Circle(V(67.351921, 67.351921, 0), V(0, 0, 1), 4.699), math.radians(-45), math.radians(135)),  # 3
    Part.LineSegment(V(36.195, -4.699, 0), V(61.722, -4.699, 0)),  # 4
    Part.ArcOfCircle(Part.Circle(V(61.722, 0, 0), V(0, 0, 1), 4.699), math.radians(-90), math.radians(90)),  # 5
    Part.LineSegment(V(61.722, 4.699, 0), V(36.195, 4.699, 0)),  # 6
    Part.ArcOfCircle(Part.Circle(V(36.195, 0, 0), V(0, 0, 1), 4.699), math.radians(90), math.radians(270)),  # 7
    Part.LineSegment(V(75.692, -4.699, 0), V(95.25, -4.699, 0)),  # 8
    Part.ArcOfCircle(Part.Circle(V(95.25, 0, 0), V(0, 0, 1), 4.699), math.radians(-90), math.radians(90)),  # 9
    Part.LineSegment(V(95.25, 4.699, 0), V(75.692, 4.699, 0)),  # 10
    Part.ArcOfCircle(Part.Circle(V(75.692, 0, 0), V(0, 0, 1), 4.699), math.radians(90), math.radians(270)),  # 11
    Part.ArcOfCircle(Part.Circle(V(0, 0, 0), V(0, 0, 1), 26.924), math.radians(0), math.radians(45)),  # 12
    Part.ArcOfCircle(Part.Circle(V(15.715448, 15.715448, 0), V(0, 0, 1), 4.699), math.radians(45), math.radians(225)),  # 13
    Part.ArcOfCircle(Part.Circle(V(0, 0, 0), V(0, 0, 1), 17.526), math.radians(0), math.radians(45)),  # 14
    Part.ArcOfCircle(Part.Circle(V(22.225, 0, 0), V(0, 0, 1), 4.699), math.radians(180), math.radians(360)),  # 15
    Part.ArcOfCircle(Part.Circle(V(0, 0, 0), V(0, 0, 1), 99.949), math.radians(15), math.radians(30)),  # 16
    Part.ArcOfCircle(Part.Circle(V(82.48892, 47.625, 0), V(0, 0, 1), 4.699), math.radians(30), math.radians(210)),  # 17
    Part.ArcOfCircle(Part.Circle(V(0, 0, 0), V(0, 0, 1), 90.551), math.radians(15), math.radians(30)),  # 18
    Part.ArcOfCircle(Part.Circle(V(92.004435, 24.652514, 0), V(0, 0, 1), 4.699), math.radians(-165), math.radians(15)),  # 19
], False)
sketch4.addConstraint([
    Sketcher.Constraint("Tangent", 0, 2, 1, 1),
    Sketcher.Constraint("Tangent", 1, 2, 2, 1),
    Sketcher.Constraint("Tangent", 2, 2, 3, 1),
    Sketcher.Constraint("Tangent", 3, 2, 0, 1),
    Sketcher.Constraint("Tangent", 4, 2, 5, 1),
    Sketcher.Constraint("Tangent", 5, 2, 6, 1),
    Sketcher.Constraint("Tangent", 6, 2, 7, 1),
    Sketcher.Constraint("Tangent", 7, 2, 4, 1),
    Sketcher.Constraint("Tangent", 8, 2, 9, 1),
    Sketcher.Constraint("Tangent", 9, 2, 10, 1),
    Sketcher.Constraint("Tangent", 10, 2, 11, 1),
    Sketcher.Constraint("Tangent", 11, 2, 8, 1),
    Sketcher.Constraint("Tangent", 12, 2, 13, 1),
    Sketcher.Constraint("Tangent", 13, 2, 14, 2),
    Sketcher.Constraint("Tangent", 14, 1, 15, 1),
    Sketcher.Constraint("Tangent", 15, 2, 12, 1),
    Sketcher.Constraint("Tangent", 16, 2, 17, 1),
    Sketcher.Constraint("Tangent", 17, 2, 18, 2),
    Sketcher.Constraint("Tangent", 18, 1, 19, 1),
    Sketcher.Constraint("Tangent", 19, 2, 16, 1),
    Sketcher.Constraint("Horizontal", 4),
    Sketcher.Constraint("Horizontal", 6),
    Sketcher.Constraint("Horizontal", 8),
    Sketcher.Constraint("Horizontal", 10),
    Sketcher.Constraint("Coincident", 12, 3, -1, 1),
    Sketcher.Constraint("Coincident", 14, 3, -1, 1),
    Sketcher.Constraint("Coincident", 16, 3, -1, 1),
    Sketcher.Constraint("Coincident", 18, 3, -1, 1),
    Sketcher.Constraint("Equal", 1, 3),
    Sketcher.Constraint("Equal", 3, 5),
    Sketcher.Constraint("Equal", 7, 9),
    Sketcher.Constraint("Equal", 11, 13),
    Sketcher.Constraint("Equal", 15, 17),
    Sketcher.Constraint("PointOnObject", 5, 3, -1),
    Sketcher.Constraint("PointOnObject", 9, 3, -1),
    Sketcher.Constraint("PointOnObject", 15, 3, -1),
    Sketcher.Constraint("Radius", 12, Q("1.06 in")),
    Sketcher.Constraint("Radius", 14, Q("0.69 in")),
    Sketcher.Constraint("Angle", 0, Q("-135 deg")),
    Sketcher.Constraint("Radius", 16, Q("3.935 in")),
    Sketcher.Constraint("DistanceX", 8, 1, 8, 2, Q("0.77 in")),
    Sketcher.Constraint("Distance", 0, Q("0.77 in")),
    Sketcher.Constraint("DistanceX", 4, 1, 4, 2, Q("1.005 in")),
    Sketcher.Constraint("DistanceX", -1, 1, 5, 3, Q("2.43 in")),
    Sketcher.Constraint("DistanceX", -1, 1, 9, 3, Q("3.75 in")),
    Sketcher.Constraint("DistanceY", -1, 1, 17, 3, Q("1.875 in")),
    Sketcher.Constraint("DistanceX", 3, 3, 17, 3, Q("15.136999 mm")),
    Sketcher.Constraint("DistanceX", 17, 3, 19, 2, Q("14.054401 mm")),
    Sketcher.Constraint("DistanceY", -1, 1, 3, 3, Q("67.351921 mm")),
    Sketcher.Constraint("DistanceX", -1, 1, 13, 3, Q("15.715448 mm")),
])
sketch4.setExpression("Constraints[36]", "Params.sketch4_radius")
sketch4.setExpression("Constraints[37]", "Params.sketch4_radius2")
sketch4.setExpression("Constraints[39]", "Params.sketch4_radius3")
sketch4.setExpression("Constraints[40]", "Params.sketch4_width")
sketch4.setExpression("Constraints[41]", "Params.sketch4_length")
pocket3 = body.newObject("PartDesign::Pocket", "Pocket002")
pocket3.Profile = sketch4
pocket3.Type = "ThroughAll"

# Sketch on XY plane
sketch5 = body.newObject("Sketcher::SketchObject", "Sketch004")
sketch5.AttachmentSupport = (doc.getObject("XY_Plane"), [""])
sketch5.MapMode = "FlatFace"
sketch5.AttachmentOffset = App.Placement(V(0, 0, 0.01 * 25.4), App.Rotation())
sketch5.addGeometry([
    Part.LineSegment(V(42.386809, 53.163116, 0), V(30.038957, 40.815264, 0)),
    Part.LineSegment(V(30.038957, 40.815264, 0), V(40.815264, 30.038957, 0)),
    Part.LineSegment(V(40.815264, 30.038957, 0), V(53.163116, 42.386809, 0)),
    Part.LineSegment(V(53.163116, 42.386809, 0), V(42.386809, 53.163116, 0)),
], False)
sketch5.addConstraint([
    Sketcher.Constraint("Coincident", 0, 2, 1, 1),
    Sketcher.Constraint("Coincident", 1, 2, 2, 1),
    Sketcher.Constraint("Coincident", 2, 2, 3, 1),
    Sketcher.Constraint("Coincident", 3, 2, 0, 1),
    Sketcher.Constraint("Perpendicular", 0, 1),
    Sketcher.Constraint("Perpendicular", 1, 2),
    Sketcher.Constraint("Perpendicular", 2, 3),
    Sketcher.Constraint("Angle", 0, Q("-135 deg")),
    Sketcher.Constraint("Distance", 1, Q("0.6 in")),
    Sketcher.Constraint("Distance", 0, Q("0.6875 in")),
    Sketcher.Constraint("DistanceY", -1, 1, 0, 2, Q("1.6069002 in")),
    Sketcher.Constraint("DistanceX", -1, 1, 1, 2, Q("1.6069002 in")),
])
sketch5.setExpression("Constraints[8]", "Params.sketch5_length")
sketch5.setExpression("Constraints[9]", "Params.sketch5_length2")
pocket4 = body.newObject("PartDesign::Pocket", "Pocket003")
pocket4.Profile = sketch5
pocket4.Type = "ThroughAll"

doc.recompute()
